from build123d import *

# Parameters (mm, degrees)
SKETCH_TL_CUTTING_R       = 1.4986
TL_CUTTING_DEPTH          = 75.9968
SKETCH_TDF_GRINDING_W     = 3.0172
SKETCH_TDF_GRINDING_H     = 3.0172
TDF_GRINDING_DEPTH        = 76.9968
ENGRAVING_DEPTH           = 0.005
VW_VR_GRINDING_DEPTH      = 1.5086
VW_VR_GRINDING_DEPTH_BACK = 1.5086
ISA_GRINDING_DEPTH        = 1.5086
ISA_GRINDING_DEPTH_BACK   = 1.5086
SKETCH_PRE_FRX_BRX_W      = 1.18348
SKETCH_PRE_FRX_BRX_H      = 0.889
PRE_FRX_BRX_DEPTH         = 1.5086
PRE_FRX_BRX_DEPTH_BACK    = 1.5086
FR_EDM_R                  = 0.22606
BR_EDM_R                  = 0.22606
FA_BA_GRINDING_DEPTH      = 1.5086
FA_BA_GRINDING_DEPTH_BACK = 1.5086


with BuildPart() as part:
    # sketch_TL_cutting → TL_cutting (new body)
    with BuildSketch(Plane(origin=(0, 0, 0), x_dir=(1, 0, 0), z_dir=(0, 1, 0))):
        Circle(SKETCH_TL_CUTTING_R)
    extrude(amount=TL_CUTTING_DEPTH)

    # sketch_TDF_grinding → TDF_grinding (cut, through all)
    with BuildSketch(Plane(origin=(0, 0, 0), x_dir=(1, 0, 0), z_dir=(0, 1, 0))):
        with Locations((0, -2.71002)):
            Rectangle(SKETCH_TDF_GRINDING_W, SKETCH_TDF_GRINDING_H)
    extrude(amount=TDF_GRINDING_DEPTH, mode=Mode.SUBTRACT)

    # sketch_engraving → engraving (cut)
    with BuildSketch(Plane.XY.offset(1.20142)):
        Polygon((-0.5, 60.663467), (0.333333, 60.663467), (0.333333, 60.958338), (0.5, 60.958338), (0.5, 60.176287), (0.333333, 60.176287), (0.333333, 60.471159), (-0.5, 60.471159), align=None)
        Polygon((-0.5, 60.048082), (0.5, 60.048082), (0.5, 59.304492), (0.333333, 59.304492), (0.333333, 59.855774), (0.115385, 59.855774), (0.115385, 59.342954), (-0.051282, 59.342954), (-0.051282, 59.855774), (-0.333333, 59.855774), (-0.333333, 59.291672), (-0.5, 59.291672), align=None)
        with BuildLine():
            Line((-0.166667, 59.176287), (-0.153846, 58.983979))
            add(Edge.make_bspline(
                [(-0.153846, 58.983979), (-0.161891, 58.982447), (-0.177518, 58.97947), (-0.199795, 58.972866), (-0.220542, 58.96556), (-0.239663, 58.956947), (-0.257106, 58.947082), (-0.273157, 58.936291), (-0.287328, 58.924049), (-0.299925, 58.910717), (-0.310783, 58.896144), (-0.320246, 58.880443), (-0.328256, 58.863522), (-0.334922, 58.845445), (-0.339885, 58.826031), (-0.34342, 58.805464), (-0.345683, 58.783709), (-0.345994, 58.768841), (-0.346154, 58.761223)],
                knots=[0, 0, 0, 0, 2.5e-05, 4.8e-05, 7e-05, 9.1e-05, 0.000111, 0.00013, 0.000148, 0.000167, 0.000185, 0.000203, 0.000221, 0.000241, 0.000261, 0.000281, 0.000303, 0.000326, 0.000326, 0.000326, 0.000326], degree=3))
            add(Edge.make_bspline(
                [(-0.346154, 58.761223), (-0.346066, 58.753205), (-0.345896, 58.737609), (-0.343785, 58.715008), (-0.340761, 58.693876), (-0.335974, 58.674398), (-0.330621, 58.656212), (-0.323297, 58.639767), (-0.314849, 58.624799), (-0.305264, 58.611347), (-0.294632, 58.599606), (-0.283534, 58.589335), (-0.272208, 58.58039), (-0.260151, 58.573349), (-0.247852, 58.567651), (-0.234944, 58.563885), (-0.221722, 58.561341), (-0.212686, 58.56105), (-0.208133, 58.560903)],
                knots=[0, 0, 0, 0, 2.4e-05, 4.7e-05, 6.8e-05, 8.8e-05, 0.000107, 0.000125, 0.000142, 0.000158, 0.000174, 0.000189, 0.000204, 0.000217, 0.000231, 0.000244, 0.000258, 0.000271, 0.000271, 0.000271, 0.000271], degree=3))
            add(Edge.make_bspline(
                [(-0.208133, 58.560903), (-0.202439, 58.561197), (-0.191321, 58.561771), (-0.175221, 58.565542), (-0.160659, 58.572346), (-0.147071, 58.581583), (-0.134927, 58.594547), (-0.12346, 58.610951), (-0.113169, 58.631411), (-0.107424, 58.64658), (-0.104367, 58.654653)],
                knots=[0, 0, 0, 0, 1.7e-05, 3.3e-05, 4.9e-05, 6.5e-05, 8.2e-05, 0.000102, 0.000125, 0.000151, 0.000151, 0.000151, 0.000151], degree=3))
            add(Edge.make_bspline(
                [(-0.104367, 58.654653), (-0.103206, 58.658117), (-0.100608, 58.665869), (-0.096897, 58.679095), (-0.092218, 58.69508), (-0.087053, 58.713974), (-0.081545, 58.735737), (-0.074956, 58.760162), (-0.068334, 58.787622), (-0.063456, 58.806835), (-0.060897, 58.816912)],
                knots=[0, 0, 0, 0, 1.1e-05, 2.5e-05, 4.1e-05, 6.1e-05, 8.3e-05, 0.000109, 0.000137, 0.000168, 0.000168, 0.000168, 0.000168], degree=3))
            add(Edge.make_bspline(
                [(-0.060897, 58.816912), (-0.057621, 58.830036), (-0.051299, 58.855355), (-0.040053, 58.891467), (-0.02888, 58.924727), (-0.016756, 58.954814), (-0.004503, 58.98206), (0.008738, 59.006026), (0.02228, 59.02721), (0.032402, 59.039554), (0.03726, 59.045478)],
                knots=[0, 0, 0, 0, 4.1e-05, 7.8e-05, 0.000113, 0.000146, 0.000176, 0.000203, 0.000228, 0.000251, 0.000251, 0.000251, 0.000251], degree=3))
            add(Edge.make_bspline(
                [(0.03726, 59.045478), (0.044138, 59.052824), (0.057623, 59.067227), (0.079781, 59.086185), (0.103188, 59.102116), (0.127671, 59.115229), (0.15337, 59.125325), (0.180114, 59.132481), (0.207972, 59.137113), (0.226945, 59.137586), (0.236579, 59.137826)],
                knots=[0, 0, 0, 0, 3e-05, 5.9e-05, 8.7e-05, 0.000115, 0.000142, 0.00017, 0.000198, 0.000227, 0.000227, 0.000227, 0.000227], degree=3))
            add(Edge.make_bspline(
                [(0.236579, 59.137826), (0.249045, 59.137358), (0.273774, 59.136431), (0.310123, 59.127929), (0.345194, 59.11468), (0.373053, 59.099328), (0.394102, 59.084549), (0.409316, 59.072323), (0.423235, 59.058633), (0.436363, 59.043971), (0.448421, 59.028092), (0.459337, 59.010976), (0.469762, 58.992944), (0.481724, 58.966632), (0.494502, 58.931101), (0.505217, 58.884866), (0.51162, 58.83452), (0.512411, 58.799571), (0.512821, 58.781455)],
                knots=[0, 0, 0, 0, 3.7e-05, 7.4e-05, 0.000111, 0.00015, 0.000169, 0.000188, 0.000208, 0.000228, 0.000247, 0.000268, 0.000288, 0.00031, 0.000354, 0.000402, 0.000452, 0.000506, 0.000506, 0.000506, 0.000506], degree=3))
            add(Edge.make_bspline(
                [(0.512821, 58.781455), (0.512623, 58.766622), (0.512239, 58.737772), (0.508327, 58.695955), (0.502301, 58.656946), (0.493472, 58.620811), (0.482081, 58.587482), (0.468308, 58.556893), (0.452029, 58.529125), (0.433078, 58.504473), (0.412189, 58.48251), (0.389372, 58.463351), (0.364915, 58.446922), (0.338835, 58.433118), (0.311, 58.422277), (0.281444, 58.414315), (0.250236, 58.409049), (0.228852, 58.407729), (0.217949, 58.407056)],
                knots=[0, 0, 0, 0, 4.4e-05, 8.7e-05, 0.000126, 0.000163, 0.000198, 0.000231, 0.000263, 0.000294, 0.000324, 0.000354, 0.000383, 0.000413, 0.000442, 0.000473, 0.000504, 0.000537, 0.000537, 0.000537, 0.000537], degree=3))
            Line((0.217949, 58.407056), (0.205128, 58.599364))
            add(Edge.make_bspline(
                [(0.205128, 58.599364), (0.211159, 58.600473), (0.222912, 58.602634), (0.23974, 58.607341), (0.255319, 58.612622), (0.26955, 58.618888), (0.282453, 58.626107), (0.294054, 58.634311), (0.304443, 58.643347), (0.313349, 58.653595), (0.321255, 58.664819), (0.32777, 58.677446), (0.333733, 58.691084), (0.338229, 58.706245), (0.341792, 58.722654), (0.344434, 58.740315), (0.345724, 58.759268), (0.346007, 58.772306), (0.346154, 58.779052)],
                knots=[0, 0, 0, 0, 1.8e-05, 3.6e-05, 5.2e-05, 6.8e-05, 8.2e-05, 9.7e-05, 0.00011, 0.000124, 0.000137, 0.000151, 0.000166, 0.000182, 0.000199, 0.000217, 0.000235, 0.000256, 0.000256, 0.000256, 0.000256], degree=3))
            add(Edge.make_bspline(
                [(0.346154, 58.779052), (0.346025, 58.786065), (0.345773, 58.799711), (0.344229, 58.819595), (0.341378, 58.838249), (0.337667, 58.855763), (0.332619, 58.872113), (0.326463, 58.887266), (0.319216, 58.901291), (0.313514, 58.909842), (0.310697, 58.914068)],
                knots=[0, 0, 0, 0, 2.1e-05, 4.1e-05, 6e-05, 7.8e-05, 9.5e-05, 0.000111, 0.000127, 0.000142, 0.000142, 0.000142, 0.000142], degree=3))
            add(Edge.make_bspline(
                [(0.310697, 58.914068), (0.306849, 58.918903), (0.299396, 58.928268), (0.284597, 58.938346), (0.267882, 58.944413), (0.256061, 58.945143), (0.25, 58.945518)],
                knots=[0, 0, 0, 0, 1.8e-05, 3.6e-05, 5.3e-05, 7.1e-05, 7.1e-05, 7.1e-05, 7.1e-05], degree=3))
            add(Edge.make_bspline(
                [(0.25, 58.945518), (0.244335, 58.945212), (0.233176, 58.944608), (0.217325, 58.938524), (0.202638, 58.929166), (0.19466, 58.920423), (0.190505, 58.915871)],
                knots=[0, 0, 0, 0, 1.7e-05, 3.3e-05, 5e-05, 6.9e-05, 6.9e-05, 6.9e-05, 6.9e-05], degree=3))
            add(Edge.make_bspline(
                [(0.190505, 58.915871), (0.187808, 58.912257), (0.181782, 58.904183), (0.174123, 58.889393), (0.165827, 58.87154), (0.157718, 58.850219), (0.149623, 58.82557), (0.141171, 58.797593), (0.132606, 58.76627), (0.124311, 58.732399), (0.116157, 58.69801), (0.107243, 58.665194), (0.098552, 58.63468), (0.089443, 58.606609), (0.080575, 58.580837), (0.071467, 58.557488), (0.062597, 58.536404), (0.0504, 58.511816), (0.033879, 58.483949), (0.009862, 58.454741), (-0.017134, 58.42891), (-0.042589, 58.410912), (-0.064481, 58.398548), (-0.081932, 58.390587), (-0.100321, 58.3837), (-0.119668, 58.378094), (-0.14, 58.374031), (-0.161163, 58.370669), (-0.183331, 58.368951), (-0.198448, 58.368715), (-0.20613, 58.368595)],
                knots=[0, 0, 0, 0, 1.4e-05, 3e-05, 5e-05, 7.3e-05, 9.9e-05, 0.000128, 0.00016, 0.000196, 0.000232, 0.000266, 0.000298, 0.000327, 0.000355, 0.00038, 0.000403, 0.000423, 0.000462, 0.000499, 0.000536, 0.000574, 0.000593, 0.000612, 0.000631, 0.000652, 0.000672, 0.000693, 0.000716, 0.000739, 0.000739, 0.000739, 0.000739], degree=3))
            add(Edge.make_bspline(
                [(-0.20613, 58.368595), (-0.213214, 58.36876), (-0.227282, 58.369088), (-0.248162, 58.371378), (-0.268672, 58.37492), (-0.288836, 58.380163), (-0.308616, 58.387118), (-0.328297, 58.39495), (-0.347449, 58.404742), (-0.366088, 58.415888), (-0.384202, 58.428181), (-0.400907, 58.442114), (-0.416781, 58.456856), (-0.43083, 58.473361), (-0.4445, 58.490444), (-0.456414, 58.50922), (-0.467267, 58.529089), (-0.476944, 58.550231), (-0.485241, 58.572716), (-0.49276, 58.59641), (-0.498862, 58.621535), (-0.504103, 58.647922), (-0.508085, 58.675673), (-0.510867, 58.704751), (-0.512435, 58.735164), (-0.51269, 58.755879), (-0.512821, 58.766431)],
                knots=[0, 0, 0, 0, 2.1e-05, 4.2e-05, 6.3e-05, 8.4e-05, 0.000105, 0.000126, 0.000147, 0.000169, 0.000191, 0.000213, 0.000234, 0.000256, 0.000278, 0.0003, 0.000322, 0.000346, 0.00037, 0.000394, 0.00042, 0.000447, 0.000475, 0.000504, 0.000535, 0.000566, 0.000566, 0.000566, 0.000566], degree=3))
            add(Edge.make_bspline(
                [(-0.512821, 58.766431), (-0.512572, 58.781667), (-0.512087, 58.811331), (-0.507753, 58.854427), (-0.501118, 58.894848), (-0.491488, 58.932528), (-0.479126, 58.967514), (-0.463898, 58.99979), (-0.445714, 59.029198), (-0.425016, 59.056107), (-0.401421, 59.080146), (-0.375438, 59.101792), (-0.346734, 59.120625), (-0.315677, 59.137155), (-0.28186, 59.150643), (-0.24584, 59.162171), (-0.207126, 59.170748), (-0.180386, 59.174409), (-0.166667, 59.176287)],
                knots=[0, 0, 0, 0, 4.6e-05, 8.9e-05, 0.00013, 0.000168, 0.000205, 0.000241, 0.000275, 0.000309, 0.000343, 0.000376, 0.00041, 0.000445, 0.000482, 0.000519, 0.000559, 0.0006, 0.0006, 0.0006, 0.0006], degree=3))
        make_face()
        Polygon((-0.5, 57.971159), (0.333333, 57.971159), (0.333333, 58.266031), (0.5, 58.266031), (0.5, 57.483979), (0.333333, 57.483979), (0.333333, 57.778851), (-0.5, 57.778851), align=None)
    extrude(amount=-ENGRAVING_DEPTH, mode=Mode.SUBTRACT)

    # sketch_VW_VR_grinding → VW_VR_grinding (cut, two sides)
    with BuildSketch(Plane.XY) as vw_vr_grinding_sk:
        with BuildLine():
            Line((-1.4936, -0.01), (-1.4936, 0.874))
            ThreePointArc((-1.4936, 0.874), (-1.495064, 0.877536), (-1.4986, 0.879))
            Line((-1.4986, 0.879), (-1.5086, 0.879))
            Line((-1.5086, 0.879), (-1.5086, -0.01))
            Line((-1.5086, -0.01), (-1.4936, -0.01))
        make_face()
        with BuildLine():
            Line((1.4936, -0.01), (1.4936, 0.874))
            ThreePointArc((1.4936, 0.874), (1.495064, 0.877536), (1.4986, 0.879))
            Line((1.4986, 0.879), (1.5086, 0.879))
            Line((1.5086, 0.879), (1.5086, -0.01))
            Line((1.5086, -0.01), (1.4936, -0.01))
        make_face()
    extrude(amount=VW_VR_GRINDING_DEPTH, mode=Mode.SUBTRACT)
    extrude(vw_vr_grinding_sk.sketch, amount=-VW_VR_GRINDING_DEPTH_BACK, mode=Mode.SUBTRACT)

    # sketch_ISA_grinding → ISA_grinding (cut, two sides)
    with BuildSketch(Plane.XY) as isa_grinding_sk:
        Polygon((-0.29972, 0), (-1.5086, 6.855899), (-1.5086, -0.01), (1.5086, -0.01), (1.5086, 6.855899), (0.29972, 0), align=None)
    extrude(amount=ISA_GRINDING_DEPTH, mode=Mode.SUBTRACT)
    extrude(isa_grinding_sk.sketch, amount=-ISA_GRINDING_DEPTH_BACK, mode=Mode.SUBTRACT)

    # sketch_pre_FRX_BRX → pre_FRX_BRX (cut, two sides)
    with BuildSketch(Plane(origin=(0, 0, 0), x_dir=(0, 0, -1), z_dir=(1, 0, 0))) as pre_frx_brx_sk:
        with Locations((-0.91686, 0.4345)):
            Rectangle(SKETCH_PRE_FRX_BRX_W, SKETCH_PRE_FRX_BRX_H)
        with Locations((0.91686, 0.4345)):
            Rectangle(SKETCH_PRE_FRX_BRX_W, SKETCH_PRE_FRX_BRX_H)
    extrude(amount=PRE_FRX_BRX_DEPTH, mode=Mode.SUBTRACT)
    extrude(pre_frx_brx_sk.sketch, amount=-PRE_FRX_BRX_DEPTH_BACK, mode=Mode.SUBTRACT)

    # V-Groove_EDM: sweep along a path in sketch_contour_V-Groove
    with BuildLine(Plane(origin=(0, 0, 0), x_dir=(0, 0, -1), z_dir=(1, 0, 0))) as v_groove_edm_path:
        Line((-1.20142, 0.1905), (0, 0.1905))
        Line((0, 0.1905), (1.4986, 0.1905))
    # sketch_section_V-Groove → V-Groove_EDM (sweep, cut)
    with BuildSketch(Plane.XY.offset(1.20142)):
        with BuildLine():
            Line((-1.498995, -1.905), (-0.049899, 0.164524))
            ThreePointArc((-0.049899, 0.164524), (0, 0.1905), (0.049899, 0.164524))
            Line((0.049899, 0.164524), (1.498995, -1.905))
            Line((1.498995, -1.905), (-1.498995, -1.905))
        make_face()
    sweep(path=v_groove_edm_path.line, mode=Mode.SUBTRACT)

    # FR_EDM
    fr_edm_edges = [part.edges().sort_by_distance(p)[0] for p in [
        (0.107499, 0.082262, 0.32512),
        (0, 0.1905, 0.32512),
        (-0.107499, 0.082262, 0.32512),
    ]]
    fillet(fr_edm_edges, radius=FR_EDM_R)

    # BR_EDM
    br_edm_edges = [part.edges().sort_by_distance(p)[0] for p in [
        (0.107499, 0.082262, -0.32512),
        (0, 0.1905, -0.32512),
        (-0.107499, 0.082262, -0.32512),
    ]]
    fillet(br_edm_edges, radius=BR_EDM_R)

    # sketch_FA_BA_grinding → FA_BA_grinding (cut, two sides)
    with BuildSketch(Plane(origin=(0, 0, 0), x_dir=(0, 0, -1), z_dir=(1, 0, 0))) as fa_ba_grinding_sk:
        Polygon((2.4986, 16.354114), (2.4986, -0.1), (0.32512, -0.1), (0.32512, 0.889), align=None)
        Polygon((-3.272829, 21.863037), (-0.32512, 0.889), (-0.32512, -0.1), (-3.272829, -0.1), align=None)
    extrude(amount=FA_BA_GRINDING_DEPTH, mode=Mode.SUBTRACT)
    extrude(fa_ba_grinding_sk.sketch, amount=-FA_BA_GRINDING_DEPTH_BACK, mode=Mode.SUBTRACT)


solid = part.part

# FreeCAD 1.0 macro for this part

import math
import FreeCAD as App
import Part
import Sketcher
Q = App.Units.Quantity


def edges_at(feature, points):
    """Names of the edges that pass closest to the given points."""
    edges = feature.Shape.Edges
    near = lambda p: min(range(len(edges)), key=lambda i: edges[i].distToShape(Part.Vertex(*p))[0])
    return sorted({f"Edge{near(p) + 1}" for p in points})

doc = App.newDocument("Part")
body = doc.addObject("PartDesign::Body", "Body")

sketch1 = body.newObject("Sketcher::SketchObject", "Sketch")
sketch1.AttachmentSupport = (doc.getObject("XZ_Plane"), [""])
sketch1.MapMode = "FlatFace"
sketch1.addGeometry(Part.Circle(App.Vector(0, 0, 0), App.Vector(0, 0, 1), 1.5), False)
sketch1.addConstraint([
    Sketcher.Constraint("Coincident", 0, 3, -1, 1),
    Sketcher.Constraint("Diameter", 0, Q("0.118 in")),
])
pad1 = body.newObject("PartDesign::Pad", "Pad")
pad1.Profile = sketch1
pad1.Length = Q("2.992 in")
pad1.Reversed = True

sketch2 = body.newObject("Sketcher::SketchObject", "Sketch001")
sketch2.AttachmentSupport = (doc.getObject("XZ_Plane"), [""])
sketch2.MapMode = "FlatFace"
sketch2.addGeometry([
    Part.LineSegment(App.Vector(-1.5, 1.2, 0), App.Vector(-1.5, 4.2, 0)),
    Part.LineSegment(App.Vector(-1.5, 4.2, 0), App.Vector(1.5, 4.2, 0)),
    Part.LineSegment(App.Vector(1.5, 4.2, 0), App.Vector(1.5, 1.2, 0)),
    Part.LineSegment(App.Vector(1.5, 1.2, 0), App.Vector(-1.5, 1.2, 0)),
], False)
sketch2.addConstraint([
    Sketcher.Constraint("Coincident", 0, 2, 1, 1),
    Sketcher.Constraint("Coincident", 1, 2, 2, 1),
    Sketcher.Constraint("Coincident", 2, 2, 3, 1),
    Sketcher.Constraint("Coincident", 3, 2, 0, 1),
    Sketcher.Constraint("Vertical", 0),
    Sketcher.Constraint("Horizontal", 1),
    Sketcher.Constraint("Vertical", 2),
    Sketcher.Constraint("Horizontal", 3),
    Sketcher.Constraint("Equal", 3, 0),
    Sketcher.Constraint("DistanceX", 1, 1, 1, 2, Q("3.0172 mm")),
    Sketcher.Constraint("DistanceY", -1, 1, 2, 2, Q("0.0473 in")),
    Sketcher.Constraint("DistanceX", 0, 2, -1, 1, Q("1.5086 mm")),
])
pocket1 = body.newObject("PartDesign::Pocket", "Pocket")
pocket1.Profile = sketch2
pocket1.Type = "ThroughAll"

sketch3 = body.newObject("Sketcher::SketchObject", "Sketch002")
sketch3.AttachmentSupport = (doc.getObject("XY_Plane"), [""])
sketch3.MapMode = "FlatFace"
sketch3.AttachmentOffset = App.Placement(App.Vector(0, 0, 0.0473 * 25.4), App.Rotation())
sketch3.addGeometry([
    Part.LineSegment(App.Vector(0.333333, 60.663467, 0), App.Vector(-0.5, 60.663467, 0)),
    Part.LineSegment(App.Vector(-0.5, 60.663467, 0), App.Vector(-0.5, 60.471159, 0)),
    Part.LineSegment(App.Vector(-0.5, 60.471159, 0), App.Vector(0.333333, 60.471159, 0)),
    Part.LineSegment(App.Vector(0.333333, 60.471159, 0), App.Vector(0.333333, 60.176287, 0)),
    Part.LineSegment(App.Vector(0.333333, 60.176287, 0), App.Vector(0.5, 60.176287, 0)),
    Part.LineSegment(App.Vector(0.5, 60.176287, 0), App.Vector(0.5, 60.958338, 0)),
    Part.LineSegment(App.Vector(0.5, 60.958338, 0), App.Vector(0.333333, 60.958338, 0)),
    Part.LineSegment(App.Vector(0.333333, 60.958338, 0), App.Vector(0.333333, 60.663467, 0)),
    Part.LineSegment(App.Vector(0.5, 60.048082, 0), App.Vector(-0.5, 60.048082, 0)),
    Part.LineSegment(App.Vector(-0.5, 60.048082, 0), App.Vector(-0.5, 59.291672, 0)),
    Part.LineSegment(App.Vector(-0.5, 59.291672, 0), App.Vector(-0.333333, 59.291672, 0)),
    Part.LineSegment(App.Vector(-0.333333, 59.291672, 0), App.Vector(-0.333333, 59.855774, 0)),
    Part.LineSegment(App.Vector(-0.333333, 59.855774, 0), App.Vector(-0.051282, 59.855774, 0)),
    Part.LineSegment(App.Vector(-0.051282, 59.855774, 0), App.Vector(-0.051282, 59.342954, 0)),
    Part.LineSegment(App.Vector(-0.051282, 59.342954, 0), App.Vector(0.115385, 59.342954, 0)),
    Part.LineSegment(App.Vector(0.115385, 59.342954, 0), App.Vector(0.115385, 59.855774, 0)),
    Part.LineSegment(App.Vector(0.115385, 59.855774, 0), App.Vector(0.333333, 59.855774, 0)),
    Part.LineSegment(App.Vector(0.333333, 59.855774, 0), App.Vector(0.333333, 59.304492, 0)),
    Part.LineSegment(App.Vector(0.333333, 59.304492, 0), App.Vector(0.5, 59.304492, 0)),
    Part.LineSegment(App.Vector(0.5, 59.304492, 0), App.Vector(0.5, 60.048082, 0)),
    Part.LineSegment(App.Vector(-0.153846, 58.983979, 0), App.Vector(-0.166667, 59.176287, 0)),
    Part.BSplineCurve([App.Vector(-0.512821, 58.766431, 0), App.Vector(-0.512572, 58.781667, 0), App.Vector(-0.512087, 58.811331, 0), App.Vector(-0.507753, 58.854427, 0), App.Vector(-0.501118, 58.894848, 0), App.Vector(-0.491488, 58.932528, 0), App.Vector(-0.479126, 58.967514, 0), App.Vector(-0.463898, 58.99979, 0), App.Vector(-0.445714, 59.029198, 0), App.Vector(-0.425016, 59.056107, 0), App.Vector(-0.401421, 59.080146, 0), App.Vector(-0.375438, 59.101792, 0), App.Vector(-0.346734, 59.120625, 0), App.Vector(-0.315677, 59.137155, 0), App.Vector(-0.28186, 59.150643, 0), App.Vector(-0.24584, 59.162171, 0), App.Vector(-0.207126, 59.170748, 0), App.Vector(-0.180386, 59.174409, 0), App.Vector(-0.166667, 59.176287, 0)], [4, 1, 1, 1, 1, 1, 1, 1, 1, 1, 1, 1, 1, 1, 1, 1, 4], [0, 0.000046, 0.000089, 0.00013, 0.000168, 0.000205, 0.000241, 0.000275, 0.000309, 0.000343, 0.000376, 0.00041, 0.000445, 0.000482, 0.000519, 0.000559, 0.0006], False, 3, [1, 1, 1, 1, 1, 1, 1, 1, 1, 1, 1, 1, 1, 1, 1, 1, 1, 1, 1], False),
    Part.BSplineCurve([App.Vector(-0.20613, 58.368595, 0), App.Vector(-0.213214, 58.36876, 0), App.Vector(-0.227282, 58.369088, 0), App.Vector(-0.248162, 58.371378, 0), App.Vector(-0.268672, 58.37492, 0), App.Vector(-0.288836, 58.380163, 0), App.Vector(-0.308616, 58.387118, 0), App.Vector(-0.328297, 58.39495, 0), App.Vector(-0.347449, 58.404742, 0), App.Vector(-0.366088, 58.415888, 0), App.Vector(-0.384202, 58.428181, 0), App.Vector(-0.400907, 58.442114, 0), App.Vector(-0.416781, 58.456856, 0), App.Vector(-0.43083, 58.473361, 0), App.Vector(-0.4445, 58.490444, 0), App.Vector(-0.456414, 58.50922, 0), App.Vector(-0.467267, 58.529089, 0), App.Vector(-0.476944, 58.550231, 0), App.Vector(-0.485241, 58.572716, 0), App.Vector(-0.49276, 58.59641, 0), App.Vector(-0.498862, 58.621535, 0), App.Vector(-0.504103, 58.647922, 0), App.Vector(-0.508085, 58.675673, 0), App.Vector(-0.510867, 58.704751, 0), App.Vector(-0.512435, 58.735164, 0), App.Vector(-0.51269, 58.755879, 0), App.Vector(-0.512821, 58.766431, 0)], [4, 1, 1, 1, 1, 1, 1, 1, 1, 1, 1, 1, 1, 1, 1, 1, 1, 1, 1, 1, 1, 1, 1, 1, 4], [0, 0.000021, 0.000042, 0.000063, 0.000084, 0.000105, 0.000126, 0.000147, 0.000169, 0.000191, 0.000213, 0.000234, 0.000256, 0.000278, 0.0003, 0.000322, 0.000346, 0.00037, 0.000394, 0.00042, 0.000447, 0.000475, 0.000504, 0.000535, 0.000566], False, 3, [1, 1, 1, 1, 1, 1, 1, 1, 1, 1, 1, 1, 1, 1, 1, 1, 1, 1, 1, 1, 1, 1, 1, 1, 1, 1, 1], False),
    Part.BSplineCurve([App.Vector(0.190505, 58.915871, 0), App.Vector(0.187808, 58.912257, 0), App.Vector(0.181782, 58.904183, 0), App.Vector(0.174123, 58.889393, 0), App.Vector(0.165827, 58.87154, 0), App.Vector(0.157718, 58.850219, 0), App.Vector(0.149623, 58.82557, 0), App.Vector(0.141171, 58.797593, 0), App.Vector(0.132606, 58.76627, 0), App.Vector(0.124311, 58.732399, 0), App.Vector(0.116157, 58.69801, 0), App.Vector(0.107243, 58.665194, 0), App.Vector(0.098552, 58.63468, 0), App.Vector(0.089443, 58.606609, 0), App.Vector(0.080575, 58.580837, 0), App.Vector(0.071467, 58.557488, 0), App.Vector(0.062597, 58.536404, 0), App.Vector(0.0504, 58.511816, 0), App.Vector(0.033879, 58.483949, 0), App.Vector(0.009862, 58.454741, 0), App.Vector(-0.017134, 58.42891, 0), App.Vector(-0.042589, 58.410912, 0), App.Vector(-0.064481, 58.398548, 0), App.Vector(-0.081932, 58.390587, 0), App.Vector(-0.100321, 58.3837, 0), App.Vector(-0.119668, 58.378094, 0), App.Vector(-0.14, 58.374031, 0), App.Vector(-0.161163, 58.370669, 0), App.Vector(-0.183331, 58.368951, 0), App.Vector(-0.198448, 58.368715, 0), App.Vector(-0.20613, 58.368595, 0)], [4, 1, 1, 1, 1, 1, 1, 1, 1, 1, 1, 1, 1, 1, 1, 1, 1, 1, 1, 1, 1, 1, 1, 1, 1, 1, 1, 1, 4], [0, 0.000014, 0.00003, 0.00005, 0.000073, 0.000099, 0.000128, 0.00016, 0.000196, 0.000232, 0.000266, 0.000298, 0.000327, 0.000355, 0.00038, 0.000403, 0.000423, 0.000462, 0.000499, 0.000536, 0.000574, 0.000593, 0.000612, 0.000631, 0.000652, 0.000672, 0.000693, 0.000716, 0.000739], False, 3, [1, 1, 1, 1, 1, 1, 1, 1, 1, 1, 1, 1, 1, 1, 1, 1, 1, 1, 1, 1, 1, 1, 1, 1, 1, 1, 1, 1, 1, 1, 1], False),
    Part.BSplineCurve([App.Vector(0.25, 58.945518, 0), App.Vector(0.244335, 58.945212, 0), App.Vector(0.233176, 58.944608, 0), App.Vector(0.217325, 58.938524, 0), App.Vector(0.202638, 58.929166, 0), App.Vector(0.19466, 58.920423, 0), App.Vector(0.190505, 58.915871, 0)], [4, 1, 1, 1, 4], [0, 0.000017, 0.000033, 0.00005, 0.000069], False, 3, [1, 1, 1, 1, 1, 1, 1], False),
    Part.BSplineCurve([App.Vector(0.310697, 58.914068, 0), App.Vector(0.306849, 58.918903, 0), App.Vector(0.299396, 58.928268, 0), App.Vector(0.284597, 58.938346, 0), App.Vector(0.267882, 58.944413, 0), App.Vector(0.256061, 58.945143, 0), App.Vector(0.25, 58.945518, 0)], [4, 1, 1, 1, 4], [0, 0.000018, 0.000036, 0.000053, 0.000071], False, 3, [1, 1, 1, 1, 1, 1, 1], False),
    Part.BSplineCurve([App.Vector(0.346154, 58.779052, 0), App.Vector(0.346025, 58.786065, 0), App.Vector(0.345773, 58.799711, 0), App.Vector(0.344229, 58.819595, 0), App.Vector(0.341378, 58.838249, 0), App.Vector(0.337667, 58.855763, 0), App.Vector(0.332619, 58.872113, 0), App.Vector(0.326463, 58.887266, 0), App.Vector(0.319216, 58.901291, 0), App.Vector(0.313514, 58.909842, 0), App.Vector(0.310697, 58.914068, 0)], [4, 1, 1, 1, 1, 1, 1, 1, 4], [0, 0.000021, 0.000041, 0.00006, 0.000078, 0.000095, 0.000111, 0.000127, 0.000142], False, 3, [1, 1, 1, 1, 1, 1, 1, 1, 1, 1, 1], False),
    Part.BSplineCurve([App.Vector(0.205128, 58.599364, 0), App.Vector(0.211159, 58.600473, 0), App.Vector(0.222912, 58.602634, 0), App.Vector(0.23974, 58.607341, 0), App.Vector(0.255319, 58.612622, 0), App.Vector(0.26955, 58.618888, 0), App.Vector(0.282453, 58.626107, 0), App.Vector(0.294054, 58.634311, 0), App.Vector(0.304443, 58.643347, 0), App.Vector(0.313349, 58.653595, 0), App.Vector(0.321255, 58.664819, 0), App.Vector(0.32777, 58.677446, 0), App.Vector(0.333733, 58.691084, 0), App.Vector(0.338229, 58.706245, 0), App.Vector(0.341792, 58.722654, 0), App.Vector(0.344434, 58.740315, 0), App.Vector(0.345724, 58.759268, 0), App.Vector(0.346007, 58.772306, 0), App.Vector(0.346154, 58.779052, 0)], [4, 1, 1, 1, 1, 1, 1, 1, 1, 1, 1, 1, 1, 1, 1, 1, 4], [0, 0.000018, 0.000036, 0.000052, 0.000068, 0.000082, 0.000097, 0.00011, 0.000124, 0.000137, 0.000151, 0.000166, 0.000182, 0.000199, 0.000217, 0.000235, 0.000256], False, 3, [1, 1, 1, 1, 1, 1, 1, 1, 1, 1, 1, 1, 1, 1, 1, 1, 1, 1, 1], False),
    Part.LineSegment(App.Vector(0.205128, 58.599364, 0), App.Vector(0.217949, 58.407056, 0)),
    Part.BSplineCurve([App.Vector(0.512821, 58.781455, 0), App.Vector(0.512623, 58.766622, 0), App.Vector(0.512239, 58.737772, 0), App.Vector(0.508327, 58.695955, 0), App.Vector(0.502301, 58.656946, 0), App.Vector(0.493472, 58.620811, 0), App.Vector(0.482081, 58.587482, 0), App.Vector(0.468308, 58.556893, 0), App.Vector(0.452029, 58.529125, 0), App.Vector(0.433078, 58.504473, 0), App.Vector(0.412189, 58.48251, 0), App.Vector(0.389372, 58.463351, 0), App.Vector(0.364915, 58.446922, 0), App.Vector(0.338835, 58.433118, 0), App.Vector(0.311, 58.422277, 0), App.Vector(0.281444, 58.414315, 0), App.Vector(0.250236, 58.409049, 0), App.Vector(0.228852, 58.407729, 0), App.Vector(0.217949, 58.407056, 0)], [4, 1, 1, 1, 1, 1, 1, 1, 1, 1, 1, 1, 1, 1, 1, 1, 4], [0, 0.000044, 0.000087, 0.000126, 0.000163, 0.000198, 0.000231, 0.000263, 0.000294, 0.000324, 0.000354, 0.000383, 0.000413, 0.000442, 0.000473, 0.000504, 0.000537], False, 3, [1, 1, 1, 1, 1, 1, 1, 1, 1, 1, 1, 1, 1, 1, 1, 1, 1, 1, 1], False),
    Part.BSplineCurve([App.Vector(0.236579, 59.137826, 0), App.Vector(0.249045, 59.137358, 0), App.Vector(0.273774, 59.136431, 0), App.Vector(0.310123, 59.127929, 0), App.Vector(0.345194, 59.11468, 0), App.Vector(0.373053, 59.099328, 0), App.Vector(0.394102, 59.084549, 0), App.Vector(0.409316, 59.072323, 0), App.Vector(0.423235, 59.058633, 0), App.Vector(0.436363, 59.043971, 0), App.Vector(0.448421, 59.028092, 0), App.Vector(0.459337, 59.010976, 0), App.Vector(0.469762, 58.992944, 0), App.Vector(0.481724, 58.966632, 0), App.Vector(0.494502, 58.931101, 0), App.Vector(0.505217, 58.884866, 0), App.Vector(0.51162, 58.83452, 0), App.Vector(0.512411, 58.799571, 0), App.Vector(0.512821, 58.781455, 0)], [4, 1, 1, 1, 1, 1, 1, 1, 1, 1, 1, 1, 1, 1, 1, 1, 4], [0, 0.000037, 0.000074, 0.000111, 0.00015, 0.000169, 0.000188, 0.000208, 0.000228, 0.000247, 0.000268, 0.000288, 0.00031, 0.000354, 0.000402, 0.000452, 0.000506], False, 3, [1, 1, 1, 1, 1, 1, 1, 1, 1, 1, 1, 1, 1, 1, 1, 1, 1, 1, 1], False),
    Part.BSplineCurve([App.Vector(0.03726, 59.045478, 0), App.Vector(0.044138, 59.052824, 0), App.Vector(0.057623, 59.067227, 0), App.Vector(0.079781, 59.086185, 0), App.Vector(0.103188, 59.102116, 0), App.Vector(0.127671, 59.115229, 0), App.Vector(0.15337, 59.125325, 0), App.Vector(0.180114, 59.132481, 0), App.Vector(0.207972, 59.137113, 0), App.Vector(0.226945, 59.137586, 0), App.Vector(0.236579, 59.137826, 0)], [4, 1, 1, 1, 1, 1, 1, 1, 4], [0, 0.00003, 0.000059, 0.000087, 0.000115, 0.000142, 0.00017, 0.000198, 0.000227], False, 3, [1, 1, 1, 1, 1, 1, 1, 1, 1, 1, 1], False),
    Part.BSplineCurve([App.Vector(-0.060897, 58.816912, 0), App.Vector(-0.057621, 58.830036, 0), App.Vector(-0.051299, 58.855355, 0), App.Vector(-0.040053, 58.891467, 0), App.Vector(-0.02888, 58.924727, 0), App.Vector(-0.016756, 58.954814, 0), App.Vector(-0.004503, 58.98206, 0), App.Vector(0.008738, 59.006026, 0), App.Vector(0.02228, 59.02721, 0), App.Vector(0.032402, 59.039554, 0), App.Vector(0.03726, 59.045478, 0)], [4, 1, 1, 1, 1, 1, 1, 1, 4], [0, 0.000041, 0.000078, 0.000113, 0.000146, 0.000176, 0.000203, 0.000228, 0.000251], False, 3, [1, 1, 1, 1, 1, 1, 1, 1, 1, 1, 1], False),
    Part.BSplineCurve([App.Vector(-0.104367, 58.654653, 0), App.Vector(-0.103206, 58.658117, 0), App.Vector(-0.100608, 58.665869, 0), App.Vector(-0.096897, 58.679095, 0), App.Vector(-0.092218, 58.69508, 0), App.Vector(-0.087053, 58.713974, 0), App.Vector(-0.081545, 58.735737, 0), App.Vector(-0.074956, 58.760162, 0), App.Vector(-0.068334, 58.787622, 0), App.Vector(-0.063456, 58.806835, 0), App.Vector(-0.060897, 58.816912, 0)], [4, 1, 1, 1, 1, 1, 1, 1, 4], [0, 0.000011, 0.000025, 0.000041, 0.000061, 0.000083, 0.000109, 0.000137, 0.000168], False, 3, [1, 1, 1, 1, 1, 1, 1, 1, 1, 1, 1], False),
    Part.BSplineCurve([App.Vector(-0.208133, 58.560903, 0), App.Vector(-0.202439, 58.561197, 0), App.Vector(-0.191321, 58.561771, 0), App.Vector(-0.175221, 58.565542, 0), App.Vector(-0.160659, 58.572346, 0), App.Vector(-0.147071, 58.581583, 0), App.Vector(-0.134927, 58.594547, 0), App.Vector(-0.12346, 58.610951, 0), App.Vector(-0.113169, 58.631411, 0), App.Vector(-0.107424, 58.64658, 0), App.Vector(-0.104367, 58.654653, 0)], [4, 1, 1, 1, 1, 1, 1, 1, 4], [0, 0.000017, 0.000033, 0.000049, 0.000065, 0.000082, 0.000102, 0.000125, 0.000151], False, 3, [1, 1, 1, 1, 1, 1, 1, 1, 1, 1, 1], False),
    Part.BSplineCurve([App.Vector(-0.346154, 58.761223, 0), App.Vector(-0.346066, 58.753205, 0), App.Vector(-0.345896, 58.737609, 0), App.Vector(-0.343785, 58.715008, 0), App.Vector(-0.340761, 58.693876, 0), App.Vector(-0.335974, 58.674398, 0), App.Vector(-0.330621, 58.656212, 0), App.Vector(-0.323297, 58.639767, 0), App.Vector(-0.314849, 58.624799, 0), App.Vector(-0.305264, 58.611347, 0), App.Vector(-0.294632, 58.599606, 0), App.Vector(-0.283534, 58.589335, 0), App.Vector(-0.272208, 58.58039, 0), App.Vector(-0.260151, 58.573349, 0), App.Vector(-0.247852, 58.567651, 0), App.Vector(-0.234944, 58.563885, 0), App.Vector(-0.221722, 58.561341, 0), App.Vector(-0.212686, 58.56105, 0), App.Vector(-0.208133, 58.560903, 0)], [4, 1, 1, 1, 1, 1, 1, 1, 1, 1, 1, 1, 1, 1, 1, 1, 4], [0, 0.000024, 0.000047, 0.000068, 0.000088, 0.000107, 0.000125, 0.000142, 0.000158, 0.000174, 0.000189, 0.000204, 0.000217, 0.000231, 0.000244, 0.000258, 0.000271], False, 3, [1, 1, 1, 1, 1, 1, 1, 1, 1, 1, 1, 1, 1, 1, 1, 1, 1, 1, 1], False),
    Part.BSplineCurve([App.Vector(-0.153846, 58.983979, 0), App.Vector(-0.161891, 58.982447, 0), App.Vector(-0.177518, 58.97947, 0), App.Vector(-0.199795, 58.972866, 0), App.Vector(-0.220542, 58.96556, 0), App.Vector(-0.239663, 58.956947, 0), App.Vector(-0.257106, 58.947082, 0), App.Vector(-0.273157, 58.936291, 0), App.Vector(-0.287328, 58.924049, 0), App.Vector(-0.299925, 58.910717, 0), App.Vector(-0.310783, 58.896144, 0), App.Vector(-0.320246, 58.880443, 0), App.Vector(-0.328256, 58.863522, 0), App.Vector(-0.334922, 58.845445, 0), App.Vector(-0.339885, 58.826031, 0), App.Vector(-0.34342, 58.805464, 0), App.Vector(-0.345683, 58.783709, 0), App.Vector(-0.345994, 58.768841, 0), App.Vector(-0.346154, 58.761223, 0)], [4, 1, 1, 1, 1, 1, 1, 1, 1, 1, 1, 1, 1, 1, 1, 1, 4], [0, 0.000025, 0.000048, 0.00007, 0.000091, 0.000111, 0.00013, 0.000148, 0.000167, 0.000185, 0.000203, 0.000221, 0.000241, 0.000261, 0.000281, 0.000303, 0.000326], False, 3, [1, 1, 1, 1, 1, 1, 1, 1, 1, 1, 1, 1, 1, 1, 1, 1, 1, 1, 1], False),
    Part.LineSegment(App.Vector(0.333333, 57.971159, 0), App.Vector(-0.5, 57.971159, 0)),
    Part.LineSegment(App.Vector(-0.5, 57.971159, 0), App.Vector(-0.5, 57.778851, 0)),
    Part.LineSegment(App.Vector(-0.5, 57.778851, 0), App.Vector(0.333333, 57.778851, 0)),
    Part.LineSegment(App.Vector(0.333333, 57.778851, 0), App.Vector(0.333333, 57.483979, 0)),
    Part.LineSegment(App.Vector(0.333333, 57.483979, 0), App.Vector(0.5, 57.483979, 0)),
    Part.LineSegment(App.Vector(0.5, 57.483979, 0), App.Vector(0.5, 58.266031, 0)),
    Part.LineSegment(App.Vector(0.5, 58.266031, 0), App.Vector(0.333333, 58.266031, 0)),
    Part.LineSegment(App.Vector(0.333333, 58.266031, 0), App.Vector(0.333333, 57.971159, 0)),
], False)
sketch3.addConstraint([
    Sketcher.Constraint("Block", 21),
    Sketcher.Constraint("Block", 22),
    Sketcher.Constraint("Block", 23),
    Sketcher.Constraint("Block", 24),
    Sketcher.Constraint("Block", 25),
    Sketcher.Constraint("Block", 26),
    Sketcher.Constraint("Block", 27),
    Sketcher.Constraint("Block", 29),
    Sketcher.Constraint("Block", 30),
    Sketcher.Constraint("Block", 31),
    Sketcher.Constraint("Block", 32),
    Sketcher.Constraint("Block", 33),
    Sketcher.Constraint("Block", 34),
    Sketcher.Constraint("Block", 35),
    Sketcher.Constraint("Block", 36),
    Sketcher.Constraint("Coincident", 0, 2, 1, 1),
    Sketcher.Constraint("Coincident", 1, 2, 2, 1),
    Sketcher.Constraint("Coincident", 2, 2, 3, 1),
    Sketcher.Constraint("Coincident", 3, 2, 4, 1),
    Sketcher.Constraint("Coincident", 4, 2, 5, 1),
    Sketcher.Constraint("Coincident", 5, 2, 6, 1),
    Sketcher.Constraint("Coincident", 6, 2, 7, 1),
    Sketcher.Constraint("Coincident", 7, 2, 0, 1),
    Sketcher.Constraint("Coincident", 8, 2, 9, 1),
    Sketcher.Constraint("Coincident", 9, 2, 10, 1),
    Sketcher.Constraint("Coincident", 10, 2, 11, 1),
    Sketcher.Constraint("Coincident", 11, 2, 12, 1),
    Sketcher.Constraint("Coincident", 12, 2, 13, 1),
    Sketcher.Constraint("Coincident", 13, 2, 14, 1),
    Sketcher.Constraint("Coincident", 14, 2, 15, 1),
    Sketcher.Constraint("Coincident", 15, 2, 16, 1),
    Sketcher.Constraint("Coincident", 16, 2, 17, 1),
    Sketcher.Constraint("Coincident", 17, 2, 18, 1),
    Sketcher.Constraint("Coincident", 18, 2, 19, 1),
    Sketcher.Constraint("Coincident", 19, 2, 8, 1),
    Sketcher.Constraint("Coincident", 20, 2, 21, 2),
    Sketcher.Constraint("Coincident", 27, 1, 28, 1),
    Sketcher.Constraint("Coincident", 28, 2, 29, 2),
    Sketcher.Constraint("Coincident", 36, 1, 20, 1),
    Sketcher.Constraint("Coincident", 37, 2, 38, 1),
    Sketcher.Constraint("Coincident", 38, 2, 39, 1),
    Sketcher.Constraint("Coincident", 39, 2, 40, 1),
    Sketcher.Constraint("Coincident", 40, 2, 41, 1),
    Sketcher.Constraint("Coincident", 41, 2, 42, 1),
    Sketcher.Constraint("Coincident", 42, 2, 43, 1),
    Sketcher.Constraint("Coincident", 43, 2, 44, 1),
    Sketcher.Constraint("Coincident", 44, 2, 37, 1),
    Sketcher.Constraint("Horizontal", 0),
    Sketcher.Constraint("Vertical", 1),
    Sketcher.Constraint("Horizontal", 2),
    Sketcher.Constraint("Vertical", 3),
    Sketcher.Constraint("Horizontal", 4),
    Sketcher.Constraint("Vertical", 5),
    Sketcher.Constraint("Horizontal", 6),
    Sketcher.Constraint("Vertical", 7),
    Sketcher.Constraint("Horizontal", 8),
    Sketcher.Constraint("Vertical", 9),
    Sketcher.Constraint("Horizontal", 10),
    Sketcher.Constraint("Vertical", 11),
    Sketcher.Constraint("Horizontal", 12),
    Sketcher.Constraint("Vertical", 13),
    Sketcher.Constraint("Horizontal", 14),
    Sketcher.Constraint("Vertical", 15),
    Sketcher.Constraint("Horizontal", 16),
    Sketcher.Constraint("Vertical", 17),
    Sketcher.Constraint("Horizontal", 18),
    Sketcher.Constraint("Vertical", 19),
    Sketcher.Constraint("Horizontal", 37),
    Sketcher.Constraint("Vertical", 38),
    Sketcher.Constraint("Horizontal", 39),
    Sketcher.Constraint("Vertical", 40),
    Sketcher.Constraint("Horizontal", 41),
    Sketcher.Constraint("Vertical", 42),
    Sketcher.Constraint("Horizontal", 43),
    Sketcher.Constraint("Vertical", 44),
    Sketcher.Constraint("Symmetric", 11, 2, 16, 2, -2),
    Sketcher.Constraint("Vertical", 3, 2, 6, 2),
    Sketcher.Constraint("Vertical", 1, 2, 8, 2),
    Sketcher.Constraint("Vertical", 7, 2, 16, 2),
    Sketcher.Constraint("Vertical", 5, 2, 18, 2),
    Sketcher.Constraint("Vertical", 9, 2, 37, 2),
    Sketcher.Constraint("Vertical", 17, 2, 39, 2),
    Sketcher.Constraint("Vertical", 19, 2, 41, 2),
    Sketcher.Constraint("Vertical", 40, 2, 43, 2),
    Sketcher.Constraint("Equal", 6, 10),
    Sketcher.Constraint("Equal", 10, 14),
    Sketcher.Constraint("Equal", 3, 7),
    Sketcher.Constraint("Equal", 1, 38),
    Sketcher.Constraint("Equal", 7, 40),
    Sketcher.Constraint("Equal", 5, 42),
    Sketcher.Constraint("DistanceX", 8, 2, 8, 1, Q("1 mm")),
    Sketcher.Constraint("DistanceY", 11, 1, 11, 2, Q("0.564102 mm")),
    Sketcher.Constraint("DistanceX", 12, 1, 12, 2, Q("0.282051 mm")),
    Sketcher.Constraint("DistanceY", 3, 2, 3, 1, Q("0.294872 mm")),
    Sketcher.Constraint("DistanceY", 5, 1, 5, 2, Q("0.782051 mm")),
    Sketcher.Constraint("DistanceY", 9, 2, 9, 1, Q("0.75641 mm")),
    Sketcher.Constraint("DistanceY", 13, 2, 13, 1, Q("0.51282 mm")),
    Sketcher.Constraint("DistanceY", 17, 2, 17, 1, Q("0.551282 mm")),
    Sketcher.Constraint("DistanceX", 20, 2, 17, 2, Q("0.5 mm")),
    Sketcher.Constraint("DistanceY", 28, 2, 14, 2, Q("0.935898 mm")),
    Sketcher.Constraint("DistanceY", -1, 1, 1, 2, Q("60.471159 mm")),
    Sketcher.Constraint("DistanceY", -1, 1, 37, 2, Q("57.971159 mm")),
])
pocket2 = body.newObject("PartDesign::Pocket", "Pocket001")
pocket2.Profile = sketch3
pocket2.Length = 0.005

sketch4 = body.newObject("Sketcher::SketchObject", "Sketch003")
sketch4.AttachmentSupport = (doc.getObject("XY_Plane"), [""])
sketch4.MapMode = "FlatFace"
sketch4.addGeometry([
    Part.LineSegment(App.Vector(-1.4936, -0.01, 0), App.Vector(-1.4936, 0.874, 0)),
    Part.ArcOfCircle(Part.Circle(App.Vector(-1.4986, 0.874, 0), App.Vector(0, 0, 1), 0.005), math.radians(0), math.radians(90)),
    Part.LineSegment(App.Vector(-1.4986, 0.879, 0), App.Vector(-1.5086, 0.879, 0)),
    Part.LineSegment(App.Vector(-1.5086, 0.879, 0), App.Vector(-1.5086, -0.01, 0)),
    Part.LineSegment(App.Vector(-1.5086, -0.01, 0), App.Vector(-1.4936, -0.01, 0)),
    Part.LineSegment(App.Vector(1.4936, 0.874, 0), App.Vector(1.4936, -0.01, 0)),
    Part.LineSegment(App.Vector(1.4936, -0.01, 0), App.Vector(1.5086, -0.01, 0)),
    Part.LineSegment(App.Vector(1.5086, -0.01, 0), App.Vector(1.5086, 0.879, 0)),
    Part.LineSegment(App.Vector(1.5086, 0.879, 0), App.Vector(1.4986, 0.879, 0)),
    Part.ArcOfCircle(Part.Circle(App.Vector(1.4986, 0.874, 0), App.Vector(0, 0, 1), 0.005), math.radians(90), math.radians(180)),
], False)
sketch4.addConstraint([
    Sketcher.Constraint("Coincident", 0, 2, 1, 1),
    Sketcher.Constraint("Coincident", 1, 2, 2, 1),
    Sketcher.Constraint("Coincident", 2, 2, 3, 1),
    Sketcher.Constraint("Coincident", 3, 2, 4, 1),
    Sketcher.Constraint("Coincident", 4, 2, 0, 1),
    Sketcher.Constraint("Coincident", 5, 2, 6, 1),
    Sketcher.Constraint("Coincident", 6, 2, 7, 1),
    Sketcher.Constraint("Coincident", 7, 2, 8, 1),
    Sketcher.Constraint("Coincident", 8, 2, 9, 1),
    Sketcher.Constraint("Coincident", 9, 2, 5, 1),
    Sketcher.Constraint("Vertical", 0),
    Sketcher.Constraint("Horizontal", 2),
    Sketcher.Constraint("Vertical", 3),
    Sketcher.Constraint("Horizontal", 4),
    Sketcher.Constraint("Vertical", 5),
    Sketcher.Constraint("Horizontal", 6),
    Sketcher.Constraint("Vertical", 7),
    Sketcher.Constraint("Horizontal", 8),
    Sketcher.Constraint("Equal", 1, 9),
    Sketcher.Constraint("Symmetric", 1, 3, 9, 3, -2),
    Sketcher.Constraint("Symmetric", 3, 2, 6, 2, -2),
    Sketcher.Constraint("Horizontal", 9, 3, 0, 2),
    Sketcher.Constraint("Horizontal", 0, 2, 9, 2),
    Sketcher.Constraint("Vertical", 9, 3, 8, 2),
    Sketcher.Constraint("Equal", 2, 8),
    Sketcher.Constraint("DistanceY", 3, 2, 3, 1, Q("0.035 in")),
    Sketcher.Constraint("Radius", 1, Q("0.004998 mm")),
    Sketcher.Constraint("DistanceX", 1, 3, -1, 1, Q("0.0589999 in")),
    Sketcher.Constraint("DistanceX", 2, 2, 2, 1, Q("0.01 mm")),
    Sketcher.Constraint("DistanceY", -1, 1, 1, 3, Q("0.874002 mm")),
])
pocket3 = body.newObject("PartDesign::Pocket", "Pocket002")
pocket3.Profile = sketch4
pocket3.Type = "ThroughAll"
pocket3.Midplane = True

sketch5 = body.newObject("Sketcher::SketchObject", "Sketch004")
sketch5.AttachmentSupport = (doc.getObject("XY_Plane"), [""])
sketch5.MapMode = "FlatFace"
sketch5.addGeometry([
    Part.LineSegment(App.Vector(-0.3, 0, 0), App.Vector(-1.5, 6.9, 0)),
    Part.LineSegment(App.Vector(-1.5, 6.9, 0), App.Vector(-1.5, 0, 0)),
    Part.LineSegment(App.Vector(-1.5, 0, 0), App.Vector(1.5, 0, 0)),
    Part.LineSegment(App.Vector(1.5, 0, 0), App.Vector(1.5, 6.9, 0)),
    Part.LineSegment(App.Vector(1.5, 6.9, 0), App.Vector(0.3, 0, 0)),
    Part.LineSegment(App.Vector(0.3, 0, 0), App.Vector(-0.3, 0, 0)),
], False)
sketch5.addConstraint([
    Sketcher.Constraint("Coincident", 0, 2, 1, 1),
    Sketcher.Constraint("Coincident", 1, 2, 2, 1),
    Sketcher.Constraint("Coincident", 2, 2, 3, 1),
    Sketcher.Constraint("Coincident", 3, 2, 4, 1),
    Sketcher.Constraint("Coincident", 4, 2, 5, 1),
    Sketcher.Constraint("Coincident", 5, 2, 0, 1),
    Sketcher.Constraint("Vertical", 1),
    Sketcher.Constraint("Horizontal", 2),
    Sketcher.Constraint("Vertical", 3),
    Sketcher.Constraint("Horizontal", 5),
    Sketcher.Constraint("Symmetric", 4, 2, 5, 2, -1, 1),
    Sketcher.Constraint("Symmetric", 0, 2, 3, 2, -2),
    Sketcher.Constraint("Angle", 0, Q("100 deg")),
    Sketcher.Constraint("DistanceX", 5, 2, 5, 1, Q("0.0236 in")),
    Sketcher.Constraint("DistanceX", 2, 1, 2, 2, Q("3.0172 mm")),
    Sketcher.Constraint("DistanceY", 1, 2, 1, 1, Q("6.865899 mm")),
])
pocket4 = body.newObject("PartDesign::Pocket", "Pocket003")
pocket4.Profile = sketch5
pocket4.Type = "ThroughAll"
pocket4.Midplane = True

sketch6 = body.newObject("Sketcher::SketchObject", "Sketch005")
sketch6.AttachmentSupport = (doc.getObject("YZ_Plane"), [""])
sketch6.MapMode = "FlatFace"
sketch6.addGeometry([
    Part.LineSegment(App.Vector(0.9, 1.5, 0), App.Vector(0, 1.5, 0)),
    Part.LineSegment(App.Vector(0, 1.5, 0), App.Vector(0, 0.3, 0)),
    Part.LineSegment(App.Vector(0, 0.3, 0), App.Vector(0.9, 0.3, 0)),
    Part.LineSegment(App.Vector(0.9, 0.3, 0), App.Vector(0.9, 1.5, 0)),
    Part.LineSegment(App.Vector(0.9, -0.3, 0), App.Vector(0, -0.3, 0)),
    Part.LineSegment(App.Vector(0, -0.3, 0), App.Vector(0, -1.5, 0)),
    Part.LineSegment(App.Vector(0, -1.5, 0), App.Vector(0.9, -1.5, 0)),
    Part.LineSegment(App.Vector(0.9, -1.5, 0), App.Vector(0.9, -0.3, 0)),
], False)
sketch6.addConstraint([
    Sketcher.Constraint("Coincident", 0, 2, 1, 1),
    Sketcher.Constraint("Coincident", 1, 2, 2, 1),
    Sketcher.Constraint("Coincident", 2, 2, 3, 1),
    Sketcher.Constraint("Coincident", 3, 2, 0, 1),
    Sketcher.Constraint("Coincident", 4, 2, 5, 1),
    Sketcher.Constraint("Coincident", 5, 2, 6, 1),
    Sketcher.Constraint("Coincident", 6, 2, 7, 1),
    Sketcher.Constraint("Coincident", 7, 2, 4, 1),
    Sketcher.Constraint("Horizontal", 0),
    Sketcher.Constraint("Vertical", 1),
    Sketcher.Constraint("Horizontal", 2),
    Sketcher.Constraint("Vertical", 3),
    Sketcher.Constraint("Horizontal", 4),
    Sketcher.Constraint("Vertical", 5),
    Sketcher.Constraint("Horizontal", 6),
    Sketcher.Constraint("Vertical", 7),
    Sketcher.Constraint("Symmetric", 1, 2, 4, 2, -1),
    Sketcher.Constraint("Symmetric", 3, 2, 6, 2, -1),
    Sketcher.Constraint("DistanceX", 0, 2, 0, 1, Q("0.035 in")),
    Sketcher.Constraint("DistanceY", -1, 1, 1, 2, Q("0.0128 in")),
    Sketcher.Constraint("DistanceY", 1, 2, 1, 1, Q("1.18348 mm")),
    Sketcher.Constraint("DistanceX", 0, 2, -1, 1, Q("0.01 mm")),
])
pocket5 = body.newObject("PartDesign::Pocket", "Pocket004")
pocket5.Profile = sketch6
pocket5.Type = "ThroughAll"
pocket5.Midplane = True

sketch7 = body.newObject("Sketcher::SketchObject", "Sketch006")
sketch7.AttachmentSupport = (doc.getObject("XY_Plane"), [""])
sketch7.MapMode = "FlatFace"
sketch7.AttachmentOffset = App.Placement(App.Vector(0, 0, 0.0473 * 25.4), App.Rotation())
sketch7.addGeometry([
    Part.LineSegment(App.Vector(-0.05, 0.16, 0), App.Vector(-1.5, -1.91, 0)),
    Part.LineSegment(App.Vector(-1.5, -1.91, 0), App.Vector(1.5, -1.91, 0)),
    Part.LineSegment(App.Vector(1.5, -1.91, 0), App.Vector(0.05, 0.16, 0)),
    Part.ArcOfCircle(Part.Circle(App.Vector(0, 0.13, 0), App.Vector(0, 0, 1), 0.06), math.radians(35), math.radians(145)),
], False)
sketch7.addConstraint([
    Sketcher.Constraint("Coincident", 0, 2, 1, 1),
    Sketcher.Constraint("Coincident", 1, 2, 2, 1),
    Sketcher.Constraint("Coincident", 2, 2, 3, 1),
    Sketcher.Constraint("Coincident", 3, 2, 0, 1),
    Sketcher.Constraint("Horizontal", 1),
    Sketcher.Constraint("Symmetric", 2, 2, 3, 2, -2),
    Sketcher.Constraint("Equal", 0, 2),
    Sketcher.Constraint("Angle", 0, Q("-124.999994 deg")),
    Sketcher.Constraint("DistanceY", 0, 2, -1, 1, Q("0.075 in")),
    Sketcher.Constraint("Radius", 3, Q("0.060915 mm")),
    Sketcher.Constraint("DistanceX", 1, 1, 1, 2, Q("2.99799 mm")),
    Sketcher.Constraint("DistanceX", -1, 1, 2, 2, Q("0.049899 mm")),
])

sketch8 = body.newObject("Sketcher::SketchObject", "Sketch007")
sketch8.AttachmentSupport = (doc.getObject("XZ_Plane"), [""])
sketch8.MapMode = "FlatFace"
sketch8.AttachmentOffset = App.Placement(App.Vector(0, 0, -0.0075 * 25.4), App.Rotation())
sketch8.addGeometry(Part.LineSegment(App.Vector(0, 1.2, 0), App.Vector(0, -1.5, 0)), False)
sketch8.addConstraint([
    Sketcher.Constraint("Vertical", 0),
    Sketcher.Constraint("PointOnObject", 0, 1, -2),
    Sketcher.Constraint("DistanceY", 0, 2, 0, 1, Q("0.1063 in")),
    Sketcher.Constraint("DistanceY", 0, 2, -1, 1, Q("0.059 in")),
])
doc.recompute()

subtractivepipe = body.newObject("PartDesign::SubtractivePipe", "SubtractivePipe")
subtractivepipe.Profile = sketch7
subtractivepipe.Spine = (sketch8, ["Edge1"])
doc.recompute()

fillet = body.newObject("PartDesign::Fillet", "Fillet")
fillet.Base = (subtractivepipe, edges_at(subtractivepipe, [(0.107, 0.082, 0.325), (0, 0.191, 0.325), (-0.107, 0.082, 0.325)]))
fillet.Radius = Q("0.0089 in")
doc.recompute()

fillet2 = body.newObject("PartDesign::Fillet", "Fillet001")
fillet2.Base = (fillet, edges_at(fillet, [(0.107, 0.082, -0.325), (0, 0.191, -0.325), (-0.107, 0.082, -0.325)]))
fillet2.Radius = Q("0.0089 in")

sketch9 = body.newObject("Sketcher::SketchObject", "Sketch008")
sketch9.AttachmentSupport = (doc.getObject("YZ_Plane"), [""])
sketch9.MapMode = "FlatFace"
sketch9.addGeometry([
    Part.LineSegment(App.Vector(-0.1, -2.5, 0), App.Vector(16.4, -2.5, 0)),
    Part.LineSegment(App.Vector(16.4, -2.5, 0), App.Vector(0.9, -0.3, 0)),
    Part.LineSegment(App.Vector(0.9, -0.3, 0), App.Vector(-0.1, -0.3, 0)),
    Part.LineSegment(App.Vector(-0.1, -0.3, 0), App.Vector(-0.1, -2.5, 0)),
    Part.LineSegment(App.Vector(0.9, 0.3, 0), App.Vector(21.9, 3.3, 0)),
    Part.LineSegment(App.Vector(21.9, 3.3, 0), App.Vector(-0.1, 3.3, 0)),
    Part.LineSegment(App.Vector(-0.1, 3.3, 0), App.Vector(-0.1, 0.3, 0)),
    Part.LineSegment(App.Vector(-0.1, 0.3, 0), App.Vector(0.9, 0.3, 0)),
], False)
sketch9.addConstraint([
    Sketcher.Constraint("Coincident", 0, 2, 1, 1),
    Sketcher.Constraint("Coincident", 1, 2, 2, 1),
    Sketcher.Constraint("Coincident", 2, 2, 3, 1),
    Sketcher.Constraint("Coincident", 3, 2, 0, 1),
    Sketcher.Constraint("Coincident", 4, 2, 5, 1),
    Sketcher.Constraint("Coincident", 5, 2, 6, 1),
    Sketcher.Constraint("Coincident", 6, 2, 7, 1),
    Sketcher.Constraint("Coincident", 7, 2, 4, 1),
    Sketcher.Constraint("Horizontal", 0),
    Sketcher.Constraint("Horizontal", 2),
    Sketcher.Constraint("Vertical", 3),
    Sketcher.Constraint("Horizontal", 5),
    Sketcher.Constraint("Vertical", 6),
    Sketcher.Constraint("Horizontal", 7),
    Sketcher.Constraint("Symmetric", 2, 2, 6, 2, -1),
    Sketcher.Constraint("Vertical", 1, 2, 7, 2),
    Sketcher.Constraint("Angle", 1, Q("172 deg")),
    Sketcher.Constraint("Angle", 4, Q("8.000001 deg")),
    Sketcher.Constraint("DistanceX", -1, 1, 1, 2, Q("0.035 in")),
    Sketcher.Constraint("DistanceX", 2, 2, 2, 1, Q("0.989 mm")),
    Sketcher.Constraint("DistanceY", 1, 2, -1, 1, Q("0.0128 in")),
    Sketcher.Constraint("Distance", 1, Q("15.617099 mm")),
    Sketcher.Constraint("DistanceY", 6, 2, 6, 1, Q("2.947709 mm")),
])
pocket6 = body.newObject("PartDesign::Pocket", "Pocket005")
pocket6.Profile = sketch9
pocket6.Type = "ThroughAll"
pocket6.Midplane = True

doc.recompute()
